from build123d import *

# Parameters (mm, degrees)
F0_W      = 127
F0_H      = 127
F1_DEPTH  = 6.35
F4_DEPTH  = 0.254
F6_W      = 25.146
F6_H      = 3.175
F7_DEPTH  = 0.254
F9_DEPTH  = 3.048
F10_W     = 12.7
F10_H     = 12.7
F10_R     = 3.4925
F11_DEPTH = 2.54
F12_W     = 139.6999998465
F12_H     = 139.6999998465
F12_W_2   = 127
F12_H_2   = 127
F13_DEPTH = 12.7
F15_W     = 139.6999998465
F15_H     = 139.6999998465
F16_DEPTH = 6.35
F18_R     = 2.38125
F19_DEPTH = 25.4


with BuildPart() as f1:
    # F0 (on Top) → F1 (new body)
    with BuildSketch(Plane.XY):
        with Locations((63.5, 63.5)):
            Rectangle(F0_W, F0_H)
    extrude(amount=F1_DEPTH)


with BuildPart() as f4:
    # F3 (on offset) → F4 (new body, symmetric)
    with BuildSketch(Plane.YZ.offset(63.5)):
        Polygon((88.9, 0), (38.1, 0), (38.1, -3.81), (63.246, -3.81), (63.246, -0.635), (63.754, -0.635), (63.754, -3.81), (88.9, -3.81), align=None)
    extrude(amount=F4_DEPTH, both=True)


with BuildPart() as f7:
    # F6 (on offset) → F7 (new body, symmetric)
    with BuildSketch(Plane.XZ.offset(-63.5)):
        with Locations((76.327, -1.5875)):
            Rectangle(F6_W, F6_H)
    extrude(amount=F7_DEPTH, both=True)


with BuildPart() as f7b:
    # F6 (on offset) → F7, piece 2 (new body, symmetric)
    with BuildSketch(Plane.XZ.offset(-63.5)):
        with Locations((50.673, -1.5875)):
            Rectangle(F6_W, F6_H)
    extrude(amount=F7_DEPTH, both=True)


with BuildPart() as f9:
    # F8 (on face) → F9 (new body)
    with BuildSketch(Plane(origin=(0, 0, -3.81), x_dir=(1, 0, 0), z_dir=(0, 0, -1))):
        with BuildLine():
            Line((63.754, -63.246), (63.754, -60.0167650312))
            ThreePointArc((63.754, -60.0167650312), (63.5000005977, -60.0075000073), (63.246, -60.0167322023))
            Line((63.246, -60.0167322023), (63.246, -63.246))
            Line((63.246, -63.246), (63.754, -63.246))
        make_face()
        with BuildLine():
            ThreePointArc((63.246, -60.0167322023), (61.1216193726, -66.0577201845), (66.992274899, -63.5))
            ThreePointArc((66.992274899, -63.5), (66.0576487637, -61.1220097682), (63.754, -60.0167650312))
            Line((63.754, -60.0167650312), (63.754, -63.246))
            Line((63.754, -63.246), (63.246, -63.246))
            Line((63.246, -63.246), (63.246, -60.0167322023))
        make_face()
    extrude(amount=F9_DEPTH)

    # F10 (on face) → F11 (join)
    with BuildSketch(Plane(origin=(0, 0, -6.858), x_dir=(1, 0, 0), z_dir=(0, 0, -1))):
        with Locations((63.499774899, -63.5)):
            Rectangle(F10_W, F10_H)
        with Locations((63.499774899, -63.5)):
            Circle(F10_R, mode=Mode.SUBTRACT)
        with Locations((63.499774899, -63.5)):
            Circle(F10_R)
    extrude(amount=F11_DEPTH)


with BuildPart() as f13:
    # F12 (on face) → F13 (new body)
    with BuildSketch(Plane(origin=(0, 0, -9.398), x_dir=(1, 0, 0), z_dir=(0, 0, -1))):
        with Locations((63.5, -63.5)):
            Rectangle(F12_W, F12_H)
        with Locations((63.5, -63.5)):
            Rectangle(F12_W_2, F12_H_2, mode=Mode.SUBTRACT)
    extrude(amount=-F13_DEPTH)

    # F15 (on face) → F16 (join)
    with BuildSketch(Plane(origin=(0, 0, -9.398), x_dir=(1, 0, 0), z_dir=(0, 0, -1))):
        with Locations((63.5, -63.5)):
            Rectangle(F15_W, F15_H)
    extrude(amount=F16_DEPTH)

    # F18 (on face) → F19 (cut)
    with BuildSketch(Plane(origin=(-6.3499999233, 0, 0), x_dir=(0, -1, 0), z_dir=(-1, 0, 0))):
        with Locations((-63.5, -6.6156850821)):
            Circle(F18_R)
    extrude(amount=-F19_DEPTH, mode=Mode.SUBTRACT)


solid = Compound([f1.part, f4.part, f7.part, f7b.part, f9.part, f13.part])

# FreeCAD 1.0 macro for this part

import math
import FreeCAD as App
import Part
import Sketcher
Q = App.Units.Quantity


def add_polygon(sketch, points):
    """Adds a closed chain of lines whose ends are joined by coincident constraints."""
    first, n = sketch.GeometryCount, len(points)
    for a, b in zip(points, points[1:] + points[:1]):
        sketch.addGeometry(Part.LineSegment(App.Vector(*a, 0), App.Vector(*b, 0)), False)
    for i in range(n):
        sketch.addConstraint(Sketcher.Constraint("Coincident", first + i, 2, first + (i + 1) % n, 1))

doc = App.newDocument("Part")
body = doc.addObject("PartDesign::Body", "Body")

# Sketch on XY plane
sketch1 = doc.addObject("Sketcher::SketchObject", "Sketch")
body.addObject(sketch1)
sketch1.AttachmentSupport = (doc.XY_Plane, [""])
sketch1.MapMode = "FlatFace"
add_polygon(sketch1, [(0, 127), (0, 0), (127, 0), (127, 127)])  # lines 0-3
sketch1.addConstraint([
    Sketcher.Constraint("Vertical", 0),
    Sketcher.Constraint("Horizontal", 1),
    Sketcher.Constraint("Vertical", 2),
    Sketcher.Constraint("Horizontal", 3),
    Sketcher.Constraint("Coincident", 0, 2, -1, 1),
    Sketcher.Constraint("Equal", 3, 0),
    Sketcher.Constraint("DistanceX", 1, 1, 1, 2, Q("5 in")),
])
pad1 = doc.addObject("PartDesign::Pad", "Pad")
body.addObject(pad1)
pad1.Profile = sketch1
pad1.Length = Q("0.25 in")
body2 = doc.addObject("PartDesign::Body", "Body001")

# Sketch on YZ plane
sketch2 = doc.addObject("Sketcher::SketchObject", "Sketch001")
body2.addObject(sketch2)
sketch2.AttachmentSupport = (doc.getObject("YZ_Plane001"), [""])
sketch2.MapMode = "FlatFace"
sketch2.AttachmentOffset = App.Placement(App.Vector(0, 0, 2.5 * 25.4), App.Rotation())
add_polygon(sketch2, [(88.9, 0), (38.1, 0), (38.1, -3.81), (63.246, -3.81), (63.246, -0.635), (63.754, -0.635), (63.754, -3.81), (88.9, -3.81)])  # lines 0-7
sketch2.addConstraint([
    Sketcher.Constraint("Horizontal", 0),
    Sketcher.Constraint("Vertical", 1),
    Sketcher.Constraint("Horizontal", 2),
    Sketcher.Constraint("Vertical", 3),
    Sketcher.Constraint("Horizontal", 4),
    Sketcher.Constraint("Vertical", 5),
    Sketcher.Constraint("Horizontal", 6),
    Sketcher.Constraint("Vertical", 7),
    Sketcher.Constraint("PointOnObject", 0, 2, -1),
    Sketcher.Constraint("Horizontal", 2, 2, 5, 2),
    Sketcher.Constraint("Equal", 2, 6),
    Sketcher.Constraint("DistanceX", 0, 2, 0, 1, Q("2 in")),
    Sketcher.Constraint("DistanceX", 2, 1, 2, 2, Q("0.99 in")),
    Sketcher.Constraint("DistanceY", 1, 2, 1, 1, Q("0.15 in")),
    Sketcher.Constraint("DistanceX", -1, 1, 0, 2, Q("1.5 in")),
    Sketcher.Constraint("DistanceY", 3, 1, 3, 2, Q("0.125 in")),
])
pad2 = doc.addObject("PartDesign::Pad", "Pad001")
body2.addObject(pad2)
pad2.Profile = sketch2
pad2.Length = Q("0.02 in")
pad2.Midplane = True
body3 = doc.addObject("PartDesign::Body", "Body002")

# Sketch on XZ plane
sketch3 = doc.addObject("Sketcher::SketchObject", "Sketch002")
body3.addObject(sketch3)
sketch3.AttachmentSupport = (doc.getObject("XZ_Plane002"), [""])
sketch3.MapMode = "FlatFace"
sketch3.AttachmentOffset = App.Placement(App.Vector(0, 0, -2.5 * 25.4), App.Rotation())
add_polygon(sketch3, [(63.754, 0), (63.754, -3.175), (88.9, -3.175), (88.9, 0)])  # lines 0-3
sketch3.addConstraint([
    Sketcher.Constraint("Vertical", 0),
    Sketcher.Constraint("Horizontal", 1),
    Sketcher.Constraint("Vertical", 2),
    Sketcher.Constraint("Horizontal", 3),
    Sketcher.Constraint("PointOnObject", 2, 2, -1),
    Sketcher.Constraint("DistanceX", 1, 1, 1, 2, Q("0.99 in")),
    Sketcher.Constraint("DistanceX", -1, 1, 1, 2, Q("3.5 in")),
    Sketcher.Constraint("DistanceY", 0, 2, 0, 1, Q("0.125 in")),
])
pad3 = doc.addObject("PartDesign::Pad", "Pad002")
body3.addObject(pad3)
pad3.Profile = sketch3
pad3.Length = Q("0.02 in")
pad3.Midplane = True
body4 = doc.addObject("PartDesign::Body", "Body003")

# Sketch on XZ plane
sketch4 = doc.addObject("Sketcher::SketchObject", "Sketch003")
body4.addObject(sketch4)
sketch4.AttachmentSupport = (doc.getObject("XZ_Plane003"), [""])
sketch4.MapMode = "FlatFace"
sketch4.AttachmentOffset = App.Placement(App.Vector(0, 0, -2.5 * 25.4), App.Rotation())
add_polygon(sketch4, [(38.1, 0), (38.1, -3.175), (63.246, -3.175), (63.246, 0)])  # lines 0-3
sketch4.addConstraint([
    Sketcher.Constraint("Vertical", 0),
    Sketcher.Constraint("Horizontal", 1),
    Sketcher.Constraint("Vertical", 2),
    Sketcher.Constraint("Horizontal", 3),
    Sketcher.Constraint("PointOnObject", 2, 2, -1),
    Sketcher.Constraint("DistanceX", 1, 1, 1, 2, Q("0.99 in")),
    Sketcher.Constraint("DistanceX", -1, 1, 0, 2, Q("1.5 in")),
    Sketcher.Constraint("DistanceY", 0, 2, 0, 1, Q("0.125 in")),
])
pad4 = doc.addObject("PartDesign::Pad", "Pad003")
body4.addObject(pad4)
pad4.Profile = sketch4
pad4.Length = Q("0.02 in")
pad4.Midplane = True
body5 = doc.addObject("PartDesign::Body", "Body004")

# Sketch on XY plane
sketch5 = doc.addObject("Sketcher::SketchObject", "Sketch004")
body5.addObject(sketch5)
sketch5.AttachmentSupport = (doc.getObject("XY_Plane004"), [""])
sketch5.MapMode = "FlatFace"
sketch5.AttachmentOffset = App.Placement(App.Vector(0, 0, -0.15 * 25.4), App.Rotation())
sketch5.addGeometry([
    Part.ArcOfCircle(Part.Circle(App.Vector(63.499775, 63.5, 0), App.Vector(0, 0, 1), 3.4925), math.radians(-94.166945), math.radians(-85.825649)),
    Part.ArcOfCircle(Part.Circle(App.Vector(63.499775, 63.5, 0), App.Vector(0, 0, 1), 3.4925), math.radians(0), math.radians(265.833055)),
    Part.ArcOfCircle(Part.Circle(App.Vector(63.499775, 63.5, 0), App.Vector(0, 0, 1), 3.4925), math.radians(-85.825649), math.radians(0)),
], False)
sketch5.addConstraint([
    Sketcher.Constraint("Tangent", 0, 1, 1, 2),
    Sketcher.Constraint("Tangent", 1, 1, 2, 2),
    Sketcher.Constraint("Tangent", 2, 1, 0, 2),
    Sketcher.Constraint("Horizontal", 2, 3, 1, 1),
    Sketcher.Constraint("DistanceY", -1, 1, 0, 3, Q("2.5 in")),
    Sketcher.Constraint("Radius", 0, Q("0.1375 in")),
    Sketcher.Constraint("DistanceX", -1, 1, 0, 1, Q("2.49 in")),
    Sketcher.Constraint("DistanceX", -1, 1, 2, 1, Q("2.51 in")),
    Sketcher.Constraint("DistanceX", -1, 1, 0, 3, Q("63.499775 mm")),
])
pad5 = doc.addObject("PartDesign::Pad", "Pad004")
body5.addObject(pad5)
pad5.Profile = sketch5
pad5.Length = Q("0.12 in")
pad5.Reversed = True

# Sketch on XY plane
sketch6 = doc.addObject("Sketcher::SketchObject", "Sketch005")
body5.addObject(sketch6)
sketch6.AttachmentSupport = (doc.getObject("XY_Plane004"), [""])
sketch6.MapMode = "FlatFace"
sketch6.AttachmentOffset = App.Placement(App.Vector(0, 0, -0.27 * 25.4), App.Rotation())
add_polygon(sketch6, [(57.149775, 57.15), (57.149775, 69.85), (69.849775, 69.85), (69.849775, 57.15)])  # lines 0-3
sketch6.addConstraint([
    Sketcher.Constraint("Vertical", 0),
    Sketcher.Constraint("Horizontal", 1),
    Sketcher.Constraint("Vertical", 2),
    Sketcher.Constraint("Horizontal", 3),
    Sketcher.Constraint("Equal", 3, 0),
    Sketcher.Constraint("DistanceX", 1, 1, 1, 2, Q("0.5 in")),
    Sketcher.Constraint("DistanceY", -1, 1, 0, 2, Q("2.75 in")),
    Sketcher.Constraint("DistanceX", -1, 1, 0, 2, Q("57.149775 mm")),
])
pad6 = doc.addObject("PartDesign::Pad", "Pad005")
body5.addObject(pad6)
pad6.Profile = sketch6
pad6.Length = Q("0.1 in")
pad6.Reversed = True
body6 = doc.addObject("PartDesign::Body", "Body005")

# Sketch on XY plane
sketch7 = doc.addObject("Sketcher::SketchObject", "Sketch006")
body6.addObject(sketch7)
sketch7.AttachmentSupport = (doc.getObject("XY_Plane005"), [""])
sketch7.MapMode = "FlatFace"
sketch7.AttachmentOffset = App.Placement(App.Vector(0, 0, -0.37 * 25.4), App.Rotation())
add_polygon(sketch7, [(-6.35, -6.35), (-6.35, 133.35), (133.35, 133.35), (133.35, -6.35)])  # lines 0-3
add_polygon(sketch7, [(127, 127), (0, 127), (0, 0), (127, 0)])  # lines 4-7
sketch7.addConstraint([
    Sketcher.Constraint("Vertical", 0),
    Sketcher.Constraint("Horizontal", 1),
    Sketcher.Constraint("Vertical", 2),
    Sketcher.Constraint("Horizontal", 3),
    Sketcher.Constraint("Horizontal", 4),
    Sketcher.Constraint("Vertical", 5),
    Sketcher.Constraint("Horizontal", 6),
    Sketcher.Constraint("Vertical", 7),
    Sketcher.Constraint("Coincident", 5, 2, -1, 1),
    Sketcher.Constraint("Equal", 3, 0),
    Sketcher.Constraint("Equal", 6, 5),
    Sketcher.Constraint("DistanceX", 4, 2, 4, 1, Q("5 in")),
    Sketcher.Constraint("DistanceX", 1, 1, 1, 2, Q("5.5 in")),
    Sketcher.Constraint("DistanceX", 0, 2, -1, 1, Q("0.25 in")),
    Sketcher.Constraint("DistanceY", -1, 1, 0, 2, Q("5.25 in")),
])
pad7 = doc.addObject("PartDesign::Pad", "Pad006")
body6.addObject(pad7)
pad7.Profile = sketch7
pad7.Length = Q("0.5 in")

# Sketch on XY plane
sketch8 = doc.addObject("Sketcher::SketchObject", "Sketch007")
body6.addObject(sketch8)
sketch8.AttachmentSupport = (doc.getObject("XY_Plane005"), [""])
sketch8.MapMode = "FlatFace"
sketch8.AttachmentOffset = App.Placement(App.Vector(0, 0, -0.37 * 25.4), App.Rotation())
add_polygon(sketch8, [(-6.35, -6.35), (-6.35, 133.35), (133.35, 133.35), (133.35, -6.35)])  # lines 0-3
sketch8.addConstraint([
    Sketcher.Constraint("Vertical", 0),
    Sketcher.Constraint("Horizontal", 1),
    Sketcher.Constraint("Vertical", 2),
    Sketcher.Constraint("Horizontal", 3),
    Sketcher.Constraint("Equal", 3, 0),
    Sketcher.Constraint("DistanceX", 1, 1, 1, 2, Q("5.5 in")),
    Sketcher.Constraint("DistanceX", 0, 2, -1, 1, Q("0.25 in")),
    Sketcher.Constraint("DistanceY", -1, 1, 0, 2, Q("5.25 in")),
])
pad8 = doc.addObject("PartDesign::Pad", "Pad007")
body6.addObject(pad8)
pad8.Profile = sketch8
pad8.Length = Q("0.25 in")
pad8.Reversed = True

# Sketch on YZ plane
sketch9 = doc.addObject("Sketcher::SketchObject", "Sketch008")
body6.addObject(sketch9)
sketch9.AttachmentSupport = (doc.getObject("YZ_Plane005"), [""])
sketch9.MapMode = "FlatFace"
sketch9.AttachmentOffset = App.Placement(App.Vector(0, 0, -0.25 * 25.4), App.Rotation())
sketch9.addGeometry(Part.Circle(App.Vector(63.5, -6.615685, 0), App.Vector(0, 0, 1), 2.38125), False)
sketch9.addConstraint([
    Sketcher.Constraint("Diameter", 0, Q("0.1875 in")),
    Sketcher.Constraint("DistanceX", -1, 1, 0, 3, Q("2.5 in")),
    Sketcher.Constraint("DistanceY", 0, 3, -1, 1, Q("6.615685 mm")),
])
pocket1 = doc.addObject("PartDesign::Pocket", "Pocket")
body6.addObject(pocket1)
pocket1.Profile = sketch9
pocket1.Length = Q("1 in")
pocket1.Reversed = True

doc.recompute()
